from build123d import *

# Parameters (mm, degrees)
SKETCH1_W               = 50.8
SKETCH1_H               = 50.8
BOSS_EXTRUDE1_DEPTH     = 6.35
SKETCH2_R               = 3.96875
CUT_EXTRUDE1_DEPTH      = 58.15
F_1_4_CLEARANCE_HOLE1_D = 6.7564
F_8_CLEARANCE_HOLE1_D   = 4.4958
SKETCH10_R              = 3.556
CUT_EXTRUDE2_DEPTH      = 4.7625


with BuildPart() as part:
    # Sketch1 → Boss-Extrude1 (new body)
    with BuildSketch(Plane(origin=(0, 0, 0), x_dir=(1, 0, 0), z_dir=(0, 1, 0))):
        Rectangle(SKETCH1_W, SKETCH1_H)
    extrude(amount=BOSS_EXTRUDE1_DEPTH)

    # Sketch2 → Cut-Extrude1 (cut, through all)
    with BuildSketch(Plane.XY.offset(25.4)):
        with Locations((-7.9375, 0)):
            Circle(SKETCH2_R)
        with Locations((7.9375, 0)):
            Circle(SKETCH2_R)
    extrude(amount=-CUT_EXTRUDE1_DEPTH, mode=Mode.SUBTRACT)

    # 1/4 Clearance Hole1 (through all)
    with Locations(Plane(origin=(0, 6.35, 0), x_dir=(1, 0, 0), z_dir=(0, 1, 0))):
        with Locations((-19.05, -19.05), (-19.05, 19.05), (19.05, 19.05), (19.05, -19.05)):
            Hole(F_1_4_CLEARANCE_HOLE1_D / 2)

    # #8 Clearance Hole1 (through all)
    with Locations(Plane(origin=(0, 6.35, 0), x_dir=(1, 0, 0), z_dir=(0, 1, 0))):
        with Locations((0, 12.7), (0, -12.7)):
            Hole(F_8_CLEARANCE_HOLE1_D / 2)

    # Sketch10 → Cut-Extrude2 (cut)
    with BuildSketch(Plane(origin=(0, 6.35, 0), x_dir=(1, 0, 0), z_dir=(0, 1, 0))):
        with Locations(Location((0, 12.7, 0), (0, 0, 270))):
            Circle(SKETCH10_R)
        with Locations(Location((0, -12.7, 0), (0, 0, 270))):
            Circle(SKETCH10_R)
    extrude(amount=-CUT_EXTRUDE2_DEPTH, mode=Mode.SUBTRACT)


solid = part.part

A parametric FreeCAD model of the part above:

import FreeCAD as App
import Part
import Sketcher
from FreeCAD import Vector
Q = App.Units.Quantity

doc = App.newDocument("Part")
params = doc.addObject("Spreadsheet::Sheet", "Params")
for row, (alias, value) in enumerate([
    ("sketch1_width", "2 in"),
    ("pad1_length", "0.25 in"),
    ("sketch2_diameter", "0.3125 in"),
    ("sketch3_diameter", "0.266 in"),
    ("hole_diameter", "0.266 in"),
    ("sketch4_diameter", "0.177 in"),
    ("hole2_diameter", "0.177 in"),
    ("sketch5_diameter", "0.28 in"),
    ("pocket2_length", "0.1875 in"),
], start=1):
    params.set(f"A{row}", alias)
    params.set(f"B{row}", "=" + value)
    params.setAlias(f"B{row}", alias)

body = doc.addObject("PartDesign::Body", "Body")

# Sketch on XZ plane
sketch1 = body.newObject("Sketcher::SketchObject", "Sketch")
sketch1.AttachmentSupport = (doc.getObject("XZ_Plane"), [""])
sketch1.MapMode = "FlatFace"
sketch1.addGeometry([
    Part.LineSegment(Vector(-25.4, -25.4, 0), Vector(-25.4, 25.4, 0)),
    Part.LineSegment(Vector(-25.4, 25.4, 0), Vector(25.4, 25.4, 0)),
    Part.LineSegment(Vector(25.4, 25.4, 0), Vector(25.4, -25.4, 0)),
    Part.LineSegment(Vector(25.4, -25.4, 0), Vector(-25.4, -25.4, 0)),
], False)
sketch1.addConstraint([
    Sketcher.Constraint("Coincident", 0, 2, 1, 1),
    Sketcher.Constraint("Coincident", 1, 2, 2, 1),
    Sketcher.Constraint("Coincident", 2, 2, 3, 1),
    Sketcher.Constraint("Coincident", 3, 2, 0, 1),
    Sketcher.Constraint("Vertical", 0),
    Sketcher.Constraint("Horizontal", 1),
    Sketcher.Constraint("Vertical", 2),
    Sketcher.Constraint("Horizontal", 3),
    Sketcher.Constraint("Symmetric", 0, 2, 2, 2, -1, 1),
    Sketcher.Constraint("Equal", 3, 0),
    Sketcher.Constraint("DistanceX", 1, 1, 1, 2, Q("2 in")),
])
sketch1.setExpression("Constraints[10]", "Params.sketch1_width")
pad1 = body.newObject("PartDesign::Pad", "Pad")
pad1.Profile = sketch1
pad1.setExpression("Length", "Params.pad1_length")
pad1.Reversed = True

# Sketch on XY plane
sketch2 = body.newObject("Sketcher::SketchObject", "Sketch001")
sketch2.AttachmentSupport = (doc.getObject("XY_Plane"), [""])
sketch2.MapMode = "FlatFace"
sketch2.AttachmentOffset = App.Placement(Vector(0, 0, 1 * 25.4), App.Rotation())
sketch2.addGeometry([
    Part.Circle(Vector(-7.9375, 0, 0), Vector(0, 0, 1), 3.96875),
    Part.Circle(Vector(7.9375, 0, 0), Vector(0, 0, 1), 3.96875),
], False)
sketch2.addConstraint([
    Sketcher.Constraint("Equal", 0, 1),
    Sketcher.Constraint("Symmetric", 0, 3, 1, 3, -1, 1),
    Sketcher.Constraint("PointOnObject", 0, 3, -1),
    Sketcher.Constraint("Diameter", 0, Q("0.3125 in")),
    Sketcher.Constraint("DistanceX", 0, 3, -1, 1, Q("0.3125 in")),
])
sketch2.setExpression("Constraints[3]", "Params.sketch2_diameter")
pocket1 = body.newObject("PartDesign::Pocket", "Pocket")
pocket1.Profile = sketch2
pocket1.Type = "ThroughAll"

# Sketch on XZ plane
sketch3 = body.newObject("Sketcher::SketchObject", "Sketch002")
sketch3.AttachmentSupport = (doc.getObject("XZ_Plane"), [""])
sketch3.MapMode = "FlatFace"
sketch3.AttachmentOffset = App.Placement(Vector(0, 0, -0.25 * 25.4), App.Rotation())
sketch3.addGeometry([
    Part.Circle(Vector(-19.05, 19.05, 0), Vector(0, 0, 1), 3.3782),
    Part.Circle(Vector(-19.05, -19.05, 0), Vector(0, 0, 1), 3.3782),
    Part.Circle(Vector(19.05, -19.05, 0), Vector(0, 0, 1), 3.3782),
    Part.Circle(Vector(19.05, 19.05, 0), Vector(0, 0, 1), 3.3782),
], False)
sketch3.addConstraint([
    Sketcher.Constraint("Equal", 0, 1),
    Sketcher.Constraint("Equal", 1, 2),
    Sketcher.Constraint("Equal", 2, 3),
    Sketcher.Constraint("Symmetric", 0, 3, 2, 3, -1, 1),
    Sketcher.Constraint("Symmetric", 1, 3, 3, 3, -1, 1),
    Sketcher.Constraint("Symmetric", 1, 3, 2, 3, -2),
    Sketcher.Constraint("Diameter", 0, Q("0.266 in")),
    Sketcher.Constraint("DistanceY", 1, 3, 0, 3, Q("1.5 in")),
    Sketcher.Constraint("DistanceX", 1, 3, 2, 3, Q("1.5 in")),
])
sketch3.setExpression("Constraints[6]", "Params.sketch3_diameter")
doc.recompute()
hole = body.newObject("PartDesign::Hole", "Hole")
hole.Profile = sketch3
hole.ThreadType = "None"
hole.setExpression("Diameter", "Params.hole_diameter")
hole.DepthType = "ThroughAll"
hole.Reversed = True

# Sketch on XZ plane
sketch4 = body.newObject("Sketcher::SketchObject", "Sketch003")
sketch4.AttachmentSupport = (doc.getObject("XZ_Plane"), [""])
sketch4.MapMode = "FlatFace"
sketch4.AttachmentOffset = App.Placement(Vector(0, 0, -0.25 * 25.4), App.Rotation())
sketch4.addGeometry([
    Part.Circle(Vector(0, -12.7, 0), Vector(0, 0, 1), 2.2479),
    Part.Circle(Vector(0, 12.7, 0), Vector(0, 0, 1), 2.2479),
], False)
sketch4.addConstraint([
    Sketcher.Constraint("Equal", 0, 1),
    Sketcher.Constraint("Symmetric", 0, 3, 1, 3, -1, 1),
    Sketcher.Constraint("PointOnObject", 0, 3, -2),
    Sketcher.Constraint("Diameter", 0, Q("0.177 in")),
    Sketcher.Constraint("DistanceY", 0, 3, 1, 3, Q("1 in")),
])
sketch4.setExpression("Constraints[3]", "Params.sketch4_diameter")
doc.recompute()
hole2 = body.newObject("PartDesign::Hole", "Hole001")
hole2.Profile = sketch4
hole2.ThreadType = "None"
hole2.setExpression("Diameter", "Params.hole2_diameter")
hole2.DepthType = "ThroughAll"
hole2.Reversed = True

# Sketch on XZ plane
sketch5 = body.newObject("Sketcher::SketchObject", "Sketch004")
sketch5.AttachmentSupport = (doc.getObject("XZ_Plane"), [""])
sketch5.MapMode = "FlatFace"
sketch5.AttachmentOffset = App.Placement(Vector(0, 0, -0.25 * 25.4), App.Rotation())
sketch5.addGeometry([
    Part.Circle(Vector(0, -12.7, 0), Vector(0, 0, 1), 3.556),
    Part.Circle(Vector(0, 12.7, 0), Vector(0, 0, 1), 3.556),
], False)
sketch5.addConstraint([
    Sketcher.Constraint("Equal", 0, 1),
    Sketcher.Constraint("Symmetric", 0, 3, 1, 3, -1, 1),
    Sketcher.Constraint("PointOnObject", 0, 3, -2),
    Sketcher.Constraint("Diameter", 0, Q("0.28 in")),
    Sketcher.Constraint("DistanceY", 0, 3, 1, 3, Q("1 in")),
])
sketch5.setExpression("Constraints[3]", "Params.sketch5_diameter")
pocket2 = body.newObject("PartDesign::Pocket", "Pocket001")
pocket2.Profile = sketch5
pocket2.setExpression("Length", "Params.pocket2_length")
pocket2.Reversed = True

doc.recompute()
